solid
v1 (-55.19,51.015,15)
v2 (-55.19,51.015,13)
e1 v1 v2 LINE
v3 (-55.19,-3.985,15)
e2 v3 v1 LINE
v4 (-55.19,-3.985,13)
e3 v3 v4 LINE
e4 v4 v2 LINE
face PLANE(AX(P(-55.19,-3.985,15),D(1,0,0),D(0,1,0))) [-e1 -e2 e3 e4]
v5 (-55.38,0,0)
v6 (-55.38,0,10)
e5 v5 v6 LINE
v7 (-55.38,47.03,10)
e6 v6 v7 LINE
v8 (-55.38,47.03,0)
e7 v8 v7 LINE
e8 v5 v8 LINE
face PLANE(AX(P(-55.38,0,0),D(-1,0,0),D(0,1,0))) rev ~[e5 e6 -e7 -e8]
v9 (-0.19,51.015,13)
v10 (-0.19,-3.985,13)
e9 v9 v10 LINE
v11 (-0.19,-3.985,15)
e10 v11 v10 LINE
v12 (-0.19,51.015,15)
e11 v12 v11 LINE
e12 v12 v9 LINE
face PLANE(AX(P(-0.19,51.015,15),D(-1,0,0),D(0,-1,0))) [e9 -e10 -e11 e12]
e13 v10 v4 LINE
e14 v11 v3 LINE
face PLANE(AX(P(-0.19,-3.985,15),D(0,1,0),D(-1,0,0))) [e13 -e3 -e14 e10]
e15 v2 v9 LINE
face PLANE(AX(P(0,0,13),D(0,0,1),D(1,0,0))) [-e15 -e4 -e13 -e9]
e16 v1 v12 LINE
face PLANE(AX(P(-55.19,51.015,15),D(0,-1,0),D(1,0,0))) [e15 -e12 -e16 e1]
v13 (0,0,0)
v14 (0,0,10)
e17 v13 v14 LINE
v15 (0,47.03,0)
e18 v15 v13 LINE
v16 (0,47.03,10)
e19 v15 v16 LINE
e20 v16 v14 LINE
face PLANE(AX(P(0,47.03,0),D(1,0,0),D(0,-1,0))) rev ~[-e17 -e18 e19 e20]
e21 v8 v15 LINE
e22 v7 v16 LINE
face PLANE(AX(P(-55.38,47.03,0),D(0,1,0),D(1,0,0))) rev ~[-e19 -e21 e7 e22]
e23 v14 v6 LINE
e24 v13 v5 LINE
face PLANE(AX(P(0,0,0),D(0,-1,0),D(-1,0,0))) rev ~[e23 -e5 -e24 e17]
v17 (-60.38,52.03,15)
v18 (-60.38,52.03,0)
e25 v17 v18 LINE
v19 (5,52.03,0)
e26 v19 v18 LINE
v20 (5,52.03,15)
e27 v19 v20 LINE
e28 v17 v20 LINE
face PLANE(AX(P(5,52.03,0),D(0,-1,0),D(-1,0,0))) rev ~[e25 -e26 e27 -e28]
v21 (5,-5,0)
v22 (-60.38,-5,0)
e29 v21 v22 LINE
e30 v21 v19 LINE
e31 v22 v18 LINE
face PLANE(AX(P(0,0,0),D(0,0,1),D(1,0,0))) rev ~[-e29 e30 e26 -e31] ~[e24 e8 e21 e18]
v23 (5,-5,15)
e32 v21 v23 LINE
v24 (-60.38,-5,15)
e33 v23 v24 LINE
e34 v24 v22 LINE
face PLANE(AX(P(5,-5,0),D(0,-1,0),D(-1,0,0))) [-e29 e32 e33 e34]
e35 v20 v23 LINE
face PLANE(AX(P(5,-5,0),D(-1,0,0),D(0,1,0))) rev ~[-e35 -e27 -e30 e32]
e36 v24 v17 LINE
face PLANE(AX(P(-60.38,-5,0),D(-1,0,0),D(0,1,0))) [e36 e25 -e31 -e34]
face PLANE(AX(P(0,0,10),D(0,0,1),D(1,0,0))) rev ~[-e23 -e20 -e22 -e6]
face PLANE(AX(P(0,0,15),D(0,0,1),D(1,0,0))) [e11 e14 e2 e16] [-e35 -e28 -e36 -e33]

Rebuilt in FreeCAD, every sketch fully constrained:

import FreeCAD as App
import Part
import Sketcher
from FreeCAD import Vector


def add_polygon(sketch, points):
    """Adds a closed chain of lines whose ends are joined by coincident constraints."""
    first, n = sketch.GeometryCount, len(points)
    for a, b in zip(points, points[1:] + points[:1]):
        sketch.addGeometry(Part.LineSegment(App.Vector(*a, 0), App.Vector(*b, 0)), False)
    for i in range(n):
        sketch.addConstraint(Sketcher.Constraint("Coincident", first + i, 2, first + (i + 1) % n, 1))

doc = App.newDocument("Part")
body = doc.addObject("PartDesign::Body", "Body")

sketch1 = body.newObject("Sketcher::SketchObject", "Sketch")
sketch1.AttachmentSupport = (doc.getObject("XY_Plane"), [""])
sketch1.MapMode = "FlatFace"
add_polygon(sketch1, [(-60.38, -5), (5, -5), (5, 52.03), (-60.38, 52.03)])
add_polygon(sketch1, [(0, 47.03), (0, 0), (-55.38, 0), (-55.38, 47.03)])
sketch1.addConstraint(Sketcher.Constraint("Horizontal", 0))
sketch1.addConstraint(Sketcher.Constraint("Vertical", 1))
sketch1.addConstraint(Sketcher.Constraint("Horizontal", 2))
sketch1.addConstraint(Sketcher.Constraint("Vertical", 3))
sketch1.addConstraint(Sketcher.Constraint("Vertical", 4))
sketch1.addConstraint(Sketcher.Constraint("Horizontal", 5))
sketch1.addConstraint(Sketcher.Constraint("Vertical", 6))
sketch1.addConstraint(Sketcher.Constraint("Horizontal", 7))
sketch1.addConstraint(Sketcher.Constraint("Coincident", 4, 2, -1, 1))
sketch1.addConstraint(Sketcher.Constraint("DistanceX", 5, 2, 5, 1, 55.38))
sketch1.addConstraint(Sketcher.Constraint("DistanceY", 4, 2, 4, 1, 47.03))
sketch1.addConstraint(Sketcher.Constraint("DistanceX", -1, 1, 0, 2, 5.0))
sketch1.addConstraint(Sketcher.Constraint("DistanceY", 0, 2, -1, 1, 5.0))
sketch1.addConstraint(Sketcher.Constraint("DistanceX", 3, 2, 5, 2, 5.0))
sketch1.addConstraint(Sketcher.Constraint("DistanceY", 6, 2, 2, 2, 5.0))
pad1 = body.newObject("PartDesign::Pad", "Pad")
pad1.Profile = sketch1
pad1.Length = 10

sketch2 = body.newObject("Sketcher::SketchObject", "Sketch001")
sketch2.AttachmentSupport = (doc.getObject("XY_Plane"), [""])
sketch2.MapMode = "FlatFace"
sketch2.AttachmentOffset = App.Placement(Vector(0, 0, 10), App.Rotation())
add_polygon(sketch2, [(5, 52.03), (-60.38, 52.03), (-60.38, -5), (5, -5)])
sketch2.addConstraint(Sketcher.Constraint("Horizontal", 0))
sketch2.addConstraint(Sketcher.Constraint("Vertical", 1))
sketch2.addConstraint(Sketcher.Constraint("Horizontal", 2))
sketch2.addConstraint(Sketcher.Constraint("Vertical", 3))
sketch2.addConstraint(Sketcher.Constraint("DistanceY", 1, 2, -1, 1, 5.0))
sketch2.addConstraint(Sketcher.Constraint("DistanceX", -1, 1, 2, 2, 5.0))
sketch2.addConstraint(Sketcher.Constraint("DistanceX", 0, 2, 0, 1, 65.38))
sketch2.addConstraint(Sketcher.Constraint("DistanceY", 1, 2, 1, 1, 57.03))
pad2 = body.newObject("PartDesign::Pad", "Pad001")
pad2.Profile = sketch2
pad2.Length = 5

sketch3 = body.newObject("Sketcher::SketchObject", "Sketch002")
sketch3.AttachmentSupport = (doc.getObject("XY_Plane"), [""])
sketch3.MapMode = "FlatFace"
sketch3.AttachmentOffset = App.Placement(Vector(0, 0, 15), App.Rotation())
add_polygon(sketch3, [(-55.19, -3.985), (-0.19, -3.985), (-0.19, 51.015), (-55.19, 51.015)])
sketch3.addConstraint(Sketcher.Constraint("Horizontal", 0))
sketch3.addConstraint(Sketcher.Constraint("Vertical", 1))
sketch3.addConstraint(Sketcher.Constraint("Horizontal", 2))
sketch3.addConstraint(Sketcher.Constraint("Vertical", 3))
sketch3.addConstraint(Sketcher.Constraint("Equal", 2, 1))
sketch3.addConstraint(Sketcher.Constraint("DistanceX", 0, 1, 0, 2, 55.0))
sketch3.addConstraint(Sketcher.Constraint("DistanceX", 0, 2, -1, 1, 0.19))
sketch3.addConstraint(Sketcher.Constraint("DistanceY", 0, 2, -1, 1, 3.985))
pocket1 = body.newObject("PartDesign::Pocket", "Pocket")
pocket1.Profile = sketch3
pocket1.Length = 2

doc.recompute()
